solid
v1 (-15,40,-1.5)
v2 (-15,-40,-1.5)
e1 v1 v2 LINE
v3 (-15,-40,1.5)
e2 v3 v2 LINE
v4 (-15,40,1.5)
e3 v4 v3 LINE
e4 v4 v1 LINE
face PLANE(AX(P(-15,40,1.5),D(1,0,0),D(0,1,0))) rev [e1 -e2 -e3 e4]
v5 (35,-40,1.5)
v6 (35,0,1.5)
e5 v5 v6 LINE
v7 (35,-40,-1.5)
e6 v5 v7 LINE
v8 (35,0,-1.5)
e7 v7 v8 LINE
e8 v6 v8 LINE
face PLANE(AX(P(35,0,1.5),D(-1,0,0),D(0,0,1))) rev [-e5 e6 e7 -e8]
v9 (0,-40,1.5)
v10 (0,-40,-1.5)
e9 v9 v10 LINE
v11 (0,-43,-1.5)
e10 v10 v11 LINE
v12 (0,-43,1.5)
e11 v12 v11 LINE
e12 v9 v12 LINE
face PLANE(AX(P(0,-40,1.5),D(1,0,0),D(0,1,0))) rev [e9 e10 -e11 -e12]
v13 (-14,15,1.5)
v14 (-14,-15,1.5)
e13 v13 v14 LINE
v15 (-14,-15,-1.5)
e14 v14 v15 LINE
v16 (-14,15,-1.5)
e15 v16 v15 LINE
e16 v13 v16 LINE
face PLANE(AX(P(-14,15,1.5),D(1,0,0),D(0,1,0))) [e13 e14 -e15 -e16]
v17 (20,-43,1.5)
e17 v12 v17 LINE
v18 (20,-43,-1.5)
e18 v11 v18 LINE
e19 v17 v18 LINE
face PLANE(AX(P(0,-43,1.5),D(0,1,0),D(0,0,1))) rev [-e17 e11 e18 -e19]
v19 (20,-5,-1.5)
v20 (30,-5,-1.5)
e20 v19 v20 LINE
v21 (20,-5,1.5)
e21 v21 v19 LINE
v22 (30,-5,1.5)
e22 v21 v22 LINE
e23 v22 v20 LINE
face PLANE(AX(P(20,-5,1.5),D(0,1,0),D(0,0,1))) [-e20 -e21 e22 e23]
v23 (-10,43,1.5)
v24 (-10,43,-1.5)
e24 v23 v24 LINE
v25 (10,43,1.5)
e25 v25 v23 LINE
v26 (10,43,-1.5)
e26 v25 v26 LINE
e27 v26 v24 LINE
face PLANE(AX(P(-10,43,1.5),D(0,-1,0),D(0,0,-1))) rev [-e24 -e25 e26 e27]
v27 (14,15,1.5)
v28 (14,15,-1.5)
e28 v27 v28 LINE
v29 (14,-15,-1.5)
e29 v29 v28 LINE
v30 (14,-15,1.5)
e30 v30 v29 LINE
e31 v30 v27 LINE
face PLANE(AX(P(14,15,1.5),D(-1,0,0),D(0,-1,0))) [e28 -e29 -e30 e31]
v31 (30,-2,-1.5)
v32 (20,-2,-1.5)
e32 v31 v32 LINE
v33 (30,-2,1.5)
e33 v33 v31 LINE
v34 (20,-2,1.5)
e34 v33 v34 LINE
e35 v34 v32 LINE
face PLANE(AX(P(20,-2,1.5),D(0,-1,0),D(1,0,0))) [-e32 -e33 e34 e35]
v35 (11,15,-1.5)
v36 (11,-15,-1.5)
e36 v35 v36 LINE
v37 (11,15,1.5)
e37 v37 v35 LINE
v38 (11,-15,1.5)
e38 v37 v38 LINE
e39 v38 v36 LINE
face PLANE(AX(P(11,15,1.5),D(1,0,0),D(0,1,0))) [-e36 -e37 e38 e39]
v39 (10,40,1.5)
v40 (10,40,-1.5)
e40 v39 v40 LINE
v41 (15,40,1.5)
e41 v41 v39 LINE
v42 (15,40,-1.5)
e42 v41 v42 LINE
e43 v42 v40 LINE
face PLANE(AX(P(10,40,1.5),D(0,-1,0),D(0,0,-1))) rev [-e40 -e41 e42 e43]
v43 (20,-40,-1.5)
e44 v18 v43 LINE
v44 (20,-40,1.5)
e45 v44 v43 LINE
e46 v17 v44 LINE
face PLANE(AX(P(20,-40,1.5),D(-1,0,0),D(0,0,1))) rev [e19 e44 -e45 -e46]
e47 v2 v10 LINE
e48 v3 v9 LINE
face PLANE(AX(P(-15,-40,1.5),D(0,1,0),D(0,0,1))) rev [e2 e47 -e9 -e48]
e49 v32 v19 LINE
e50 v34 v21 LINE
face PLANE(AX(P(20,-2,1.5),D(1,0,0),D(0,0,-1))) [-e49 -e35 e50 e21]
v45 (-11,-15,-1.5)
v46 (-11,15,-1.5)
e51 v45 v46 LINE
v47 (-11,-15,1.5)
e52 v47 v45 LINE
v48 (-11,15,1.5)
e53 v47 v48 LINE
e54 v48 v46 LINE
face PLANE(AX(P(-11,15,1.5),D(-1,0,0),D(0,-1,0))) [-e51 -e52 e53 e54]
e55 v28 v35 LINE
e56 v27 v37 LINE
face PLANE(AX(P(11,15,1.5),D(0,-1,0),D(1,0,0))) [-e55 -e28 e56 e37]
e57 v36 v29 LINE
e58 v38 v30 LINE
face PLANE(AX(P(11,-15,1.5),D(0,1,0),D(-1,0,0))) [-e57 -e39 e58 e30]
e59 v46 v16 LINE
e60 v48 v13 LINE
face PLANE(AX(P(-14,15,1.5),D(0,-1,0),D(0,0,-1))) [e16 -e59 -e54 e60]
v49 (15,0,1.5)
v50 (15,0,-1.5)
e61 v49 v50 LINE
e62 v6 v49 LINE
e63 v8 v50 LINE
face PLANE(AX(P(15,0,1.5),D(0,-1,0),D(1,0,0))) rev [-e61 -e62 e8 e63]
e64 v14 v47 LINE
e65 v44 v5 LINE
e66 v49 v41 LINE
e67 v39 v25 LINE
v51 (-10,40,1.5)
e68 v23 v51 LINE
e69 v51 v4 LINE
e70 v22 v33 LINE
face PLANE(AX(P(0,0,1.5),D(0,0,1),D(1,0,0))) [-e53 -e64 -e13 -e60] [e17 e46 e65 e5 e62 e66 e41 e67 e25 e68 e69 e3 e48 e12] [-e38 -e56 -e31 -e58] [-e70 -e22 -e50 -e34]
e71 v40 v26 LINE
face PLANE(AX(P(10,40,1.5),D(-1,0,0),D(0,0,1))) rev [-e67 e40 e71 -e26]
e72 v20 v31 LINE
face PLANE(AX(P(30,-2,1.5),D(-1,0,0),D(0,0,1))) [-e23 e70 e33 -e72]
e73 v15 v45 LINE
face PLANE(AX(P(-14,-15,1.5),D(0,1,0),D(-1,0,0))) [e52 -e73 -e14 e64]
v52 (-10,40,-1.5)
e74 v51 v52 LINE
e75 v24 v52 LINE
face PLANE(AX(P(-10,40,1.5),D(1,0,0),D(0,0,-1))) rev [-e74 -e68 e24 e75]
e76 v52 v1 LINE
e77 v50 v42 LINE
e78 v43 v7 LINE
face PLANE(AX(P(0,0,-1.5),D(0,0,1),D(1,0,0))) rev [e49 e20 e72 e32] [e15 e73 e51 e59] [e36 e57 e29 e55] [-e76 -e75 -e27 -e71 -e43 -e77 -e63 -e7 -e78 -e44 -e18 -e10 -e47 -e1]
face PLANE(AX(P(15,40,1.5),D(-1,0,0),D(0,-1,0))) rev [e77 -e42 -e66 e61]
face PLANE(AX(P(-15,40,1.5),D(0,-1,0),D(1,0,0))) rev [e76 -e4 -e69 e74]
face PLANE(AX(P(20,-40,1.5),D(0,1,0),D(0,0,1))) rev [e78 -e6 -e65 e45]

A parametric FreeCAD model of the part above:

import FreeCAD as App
import Part
import Sketcher

V = App.Vector
Q = App.Units.Quantity


def add_polygon(sketch, points):
    """Adds a closed chain of lines whose ends are joined by coincident constraints."""
    first, n = sketch.GeometryCount, len(points)
    for a, b in zip(points, points[1:] + points[:1]):
        sketch.addGeometry(Part.LineSegment(App.Vector(*a, 0), App.Vector(*b, 0)), False)
    for i in range(n):
        sketch.addConstraint(Sketcher.Constraint("Coincident", first + i, 2, first + (i + 1) % n, 1))

doc = App.newDocument("Part")
body = doc.addObject("PartDesign::Body", "Body")

sketch1 = body.newObject("Sketcher::SketchObject", "Sketch")
sketch1.AttachmentSupport = (doc.getObject("XY_Plane"), [""])
sketch1.MapMode = "FlatFace"
add_polygon(sketch1, [(15, 40), (10, 40), (10, 43), (-10, 43), (-10, 40), (-15, 40), (-15, -40), (0, -40), (0, -43), (20, -43), (20, -40), (35, -40), (35, 0), (15, 0)])
add_polygon(sketch1, [(20, -5), (20, -2), (30, -2), (30, -5)])
add_polygon(sketch1, [(11, -15), (11, 15), (14, 15), (14, -15)])
add_polygon(sketch1, [(-14, -15), (-14, 15), (-11, 15), (-11, -15)])
sketch1.addConstraint(Sketcher.Constraint("Horizontal", 0))
sketch1.addConstraint(Sketcher.Constraint("Vertical", 1))
sketch1.addConstraint(Sketcher.Constraint("Horizontal", 2))
sketch1.addConstraint(Sketcher.Constraint("Vertical", 3))
sketch1.addConstraint(Sketcher.Constraint("Horizontal", 4))
sketch1.addConstraint(Sketcher.Constraint("Vertical", 5))
sketch1.addConstraint(Sketcher.Constraint("Horizontal", 6))
sketch1.addConstraint(Sketcher.Constraint("Vertical", 7))
sketch1.addConstraint(Sketcher.Constraint("Horizontal", 8))
sketch1.addConstraint(Sketcher.Constraint("Vertical", 9))
sketch1.addConstraint(Sketcher.Constraint("Horizontal", 10))
sketch1.addConstraint(Sketcher.Constraint("Vertical", 11))
sketch1.addConstraint(Sketcher.Constraint("Horizontal", 12))
sketch1.addConstraint(Sketcher.Constraint("Vertical", 13))
sketch1.addConstraint(Sketcher.Constraint("Vertical", 14))
sketch1.addConstraint(Sketcher.Constraint("Horizontal", 15))
sketch1.addConstraint(Sketcher.Constraint("Vertical", 16))
sketch1.addConstraint(Sketcher.Constraint("Horizontal", 17))
sketch1.addConstraint(Sketcher.Constraint("Vertical", 18))
sketch1.addConstraint(Sketcher.Constraint("Horizontal", 19))
sketch1.addConstraint(Sketcher.Constraint("Vertical", 20))
sketch1.addConstraint(Sketcher.Constraint("Horizontal", 21))
sketch1.addConstraint(Sketcher.Constraint("Vertical", 22))
sketch1.addConstraint(Sketcher.Constraint("Horizontal", 23))
sketch1.addConstraint(Sketcher.Constraint("Vertical", 24))
sketch1.addConstraint(Sketcher.Constraint("Horizontal", 25))
sketch1.addConstraint(Sketcher.Constraint("Symmetric", 5, 2, 13, 2, -1, 1))
sketch1.addConstraint(Sketcher.Constraint("Symmetric", 20, 2, 22, 2, -1, 1))
sketch1.addConstraint(Sketcher.Constraint("Symmetric", 18, 2, 24, 2, -1, 1))
sketch1.addConstraint(Sketcher.Constraint("Symmetric", 0, 2, 3, 2, -2))
sketch1.addConstraint(Sketcher.Constraint("PointOnObject", 6, 2, -2))
sketch1.addConstraint(Sketcher.Constraint("PointOnObject", 11, 2, -1))
sketch1.addConstraint(Sketcher.Constraint("Horizontal", 6, 2, 9, 2))
sketch1.addConstraint(Sketcher.Constraint("Horizontal", 19, 2, 22, 2))
sketch1.addConstraint(Sketcher.Constraint("Vertical", 9, 2, 14, 2))
sketch1.addConstraint(Sketcher.Constraint("Equal", 2, 8))
sketch1.addConstraint(Sketcher.Constraint("Equal", 6, 10))
sketch1.addConstraint(Sketcher.Constraint("Equal", 25, 1))
sketch1.addConstraint(Sketcher.Constraint("Equal", 3, 7))
sketch1.addConstraint(Sketcher.Constraint("Equal", 9, 14))
sketch1.addConstraint(Sketcher.Constraint("DistanceX", 0, 2, 0, 1, Q("5 mm")))
sketch1.addConstraint(Sketcher.Constraint("DistanceX", 2, 2, 2, 1, Q("20 mm")))
sketch1.addConstraint(Sketcher.Constraint("DistanceX", 15, 1, 15, 2, Q("10 mm")))
sketch1.addConstraint(Sketcher.Constraint("DistanceX", 19, 1, 19, 2, Q("3 mm")))
sketch1.addConstraint(Sketcher.Constraint("DistanceY", 5, 2, 5, 1, Q("80 mm")))
sketch1.addConstraint(Sketcher.Constraint("DistanceY", 18, 1, 18, 2, Q("30 mm")))
sketch1.addConstraint(Sketcher.Constraint("DistanceY", 14, 2, -1, 1, Q("2 mm")))
sketch1.addConstraint(Sketcher.Constraint("DistanceX", -1, 1, 18, 2, Q("11 mm")))
pad1 = body.newObject("PartDesign::Pad", "Pad")
pad1.Profile = sketch1
pad1.Length = 3
pad1.Midplane = True

doc.recompute()
